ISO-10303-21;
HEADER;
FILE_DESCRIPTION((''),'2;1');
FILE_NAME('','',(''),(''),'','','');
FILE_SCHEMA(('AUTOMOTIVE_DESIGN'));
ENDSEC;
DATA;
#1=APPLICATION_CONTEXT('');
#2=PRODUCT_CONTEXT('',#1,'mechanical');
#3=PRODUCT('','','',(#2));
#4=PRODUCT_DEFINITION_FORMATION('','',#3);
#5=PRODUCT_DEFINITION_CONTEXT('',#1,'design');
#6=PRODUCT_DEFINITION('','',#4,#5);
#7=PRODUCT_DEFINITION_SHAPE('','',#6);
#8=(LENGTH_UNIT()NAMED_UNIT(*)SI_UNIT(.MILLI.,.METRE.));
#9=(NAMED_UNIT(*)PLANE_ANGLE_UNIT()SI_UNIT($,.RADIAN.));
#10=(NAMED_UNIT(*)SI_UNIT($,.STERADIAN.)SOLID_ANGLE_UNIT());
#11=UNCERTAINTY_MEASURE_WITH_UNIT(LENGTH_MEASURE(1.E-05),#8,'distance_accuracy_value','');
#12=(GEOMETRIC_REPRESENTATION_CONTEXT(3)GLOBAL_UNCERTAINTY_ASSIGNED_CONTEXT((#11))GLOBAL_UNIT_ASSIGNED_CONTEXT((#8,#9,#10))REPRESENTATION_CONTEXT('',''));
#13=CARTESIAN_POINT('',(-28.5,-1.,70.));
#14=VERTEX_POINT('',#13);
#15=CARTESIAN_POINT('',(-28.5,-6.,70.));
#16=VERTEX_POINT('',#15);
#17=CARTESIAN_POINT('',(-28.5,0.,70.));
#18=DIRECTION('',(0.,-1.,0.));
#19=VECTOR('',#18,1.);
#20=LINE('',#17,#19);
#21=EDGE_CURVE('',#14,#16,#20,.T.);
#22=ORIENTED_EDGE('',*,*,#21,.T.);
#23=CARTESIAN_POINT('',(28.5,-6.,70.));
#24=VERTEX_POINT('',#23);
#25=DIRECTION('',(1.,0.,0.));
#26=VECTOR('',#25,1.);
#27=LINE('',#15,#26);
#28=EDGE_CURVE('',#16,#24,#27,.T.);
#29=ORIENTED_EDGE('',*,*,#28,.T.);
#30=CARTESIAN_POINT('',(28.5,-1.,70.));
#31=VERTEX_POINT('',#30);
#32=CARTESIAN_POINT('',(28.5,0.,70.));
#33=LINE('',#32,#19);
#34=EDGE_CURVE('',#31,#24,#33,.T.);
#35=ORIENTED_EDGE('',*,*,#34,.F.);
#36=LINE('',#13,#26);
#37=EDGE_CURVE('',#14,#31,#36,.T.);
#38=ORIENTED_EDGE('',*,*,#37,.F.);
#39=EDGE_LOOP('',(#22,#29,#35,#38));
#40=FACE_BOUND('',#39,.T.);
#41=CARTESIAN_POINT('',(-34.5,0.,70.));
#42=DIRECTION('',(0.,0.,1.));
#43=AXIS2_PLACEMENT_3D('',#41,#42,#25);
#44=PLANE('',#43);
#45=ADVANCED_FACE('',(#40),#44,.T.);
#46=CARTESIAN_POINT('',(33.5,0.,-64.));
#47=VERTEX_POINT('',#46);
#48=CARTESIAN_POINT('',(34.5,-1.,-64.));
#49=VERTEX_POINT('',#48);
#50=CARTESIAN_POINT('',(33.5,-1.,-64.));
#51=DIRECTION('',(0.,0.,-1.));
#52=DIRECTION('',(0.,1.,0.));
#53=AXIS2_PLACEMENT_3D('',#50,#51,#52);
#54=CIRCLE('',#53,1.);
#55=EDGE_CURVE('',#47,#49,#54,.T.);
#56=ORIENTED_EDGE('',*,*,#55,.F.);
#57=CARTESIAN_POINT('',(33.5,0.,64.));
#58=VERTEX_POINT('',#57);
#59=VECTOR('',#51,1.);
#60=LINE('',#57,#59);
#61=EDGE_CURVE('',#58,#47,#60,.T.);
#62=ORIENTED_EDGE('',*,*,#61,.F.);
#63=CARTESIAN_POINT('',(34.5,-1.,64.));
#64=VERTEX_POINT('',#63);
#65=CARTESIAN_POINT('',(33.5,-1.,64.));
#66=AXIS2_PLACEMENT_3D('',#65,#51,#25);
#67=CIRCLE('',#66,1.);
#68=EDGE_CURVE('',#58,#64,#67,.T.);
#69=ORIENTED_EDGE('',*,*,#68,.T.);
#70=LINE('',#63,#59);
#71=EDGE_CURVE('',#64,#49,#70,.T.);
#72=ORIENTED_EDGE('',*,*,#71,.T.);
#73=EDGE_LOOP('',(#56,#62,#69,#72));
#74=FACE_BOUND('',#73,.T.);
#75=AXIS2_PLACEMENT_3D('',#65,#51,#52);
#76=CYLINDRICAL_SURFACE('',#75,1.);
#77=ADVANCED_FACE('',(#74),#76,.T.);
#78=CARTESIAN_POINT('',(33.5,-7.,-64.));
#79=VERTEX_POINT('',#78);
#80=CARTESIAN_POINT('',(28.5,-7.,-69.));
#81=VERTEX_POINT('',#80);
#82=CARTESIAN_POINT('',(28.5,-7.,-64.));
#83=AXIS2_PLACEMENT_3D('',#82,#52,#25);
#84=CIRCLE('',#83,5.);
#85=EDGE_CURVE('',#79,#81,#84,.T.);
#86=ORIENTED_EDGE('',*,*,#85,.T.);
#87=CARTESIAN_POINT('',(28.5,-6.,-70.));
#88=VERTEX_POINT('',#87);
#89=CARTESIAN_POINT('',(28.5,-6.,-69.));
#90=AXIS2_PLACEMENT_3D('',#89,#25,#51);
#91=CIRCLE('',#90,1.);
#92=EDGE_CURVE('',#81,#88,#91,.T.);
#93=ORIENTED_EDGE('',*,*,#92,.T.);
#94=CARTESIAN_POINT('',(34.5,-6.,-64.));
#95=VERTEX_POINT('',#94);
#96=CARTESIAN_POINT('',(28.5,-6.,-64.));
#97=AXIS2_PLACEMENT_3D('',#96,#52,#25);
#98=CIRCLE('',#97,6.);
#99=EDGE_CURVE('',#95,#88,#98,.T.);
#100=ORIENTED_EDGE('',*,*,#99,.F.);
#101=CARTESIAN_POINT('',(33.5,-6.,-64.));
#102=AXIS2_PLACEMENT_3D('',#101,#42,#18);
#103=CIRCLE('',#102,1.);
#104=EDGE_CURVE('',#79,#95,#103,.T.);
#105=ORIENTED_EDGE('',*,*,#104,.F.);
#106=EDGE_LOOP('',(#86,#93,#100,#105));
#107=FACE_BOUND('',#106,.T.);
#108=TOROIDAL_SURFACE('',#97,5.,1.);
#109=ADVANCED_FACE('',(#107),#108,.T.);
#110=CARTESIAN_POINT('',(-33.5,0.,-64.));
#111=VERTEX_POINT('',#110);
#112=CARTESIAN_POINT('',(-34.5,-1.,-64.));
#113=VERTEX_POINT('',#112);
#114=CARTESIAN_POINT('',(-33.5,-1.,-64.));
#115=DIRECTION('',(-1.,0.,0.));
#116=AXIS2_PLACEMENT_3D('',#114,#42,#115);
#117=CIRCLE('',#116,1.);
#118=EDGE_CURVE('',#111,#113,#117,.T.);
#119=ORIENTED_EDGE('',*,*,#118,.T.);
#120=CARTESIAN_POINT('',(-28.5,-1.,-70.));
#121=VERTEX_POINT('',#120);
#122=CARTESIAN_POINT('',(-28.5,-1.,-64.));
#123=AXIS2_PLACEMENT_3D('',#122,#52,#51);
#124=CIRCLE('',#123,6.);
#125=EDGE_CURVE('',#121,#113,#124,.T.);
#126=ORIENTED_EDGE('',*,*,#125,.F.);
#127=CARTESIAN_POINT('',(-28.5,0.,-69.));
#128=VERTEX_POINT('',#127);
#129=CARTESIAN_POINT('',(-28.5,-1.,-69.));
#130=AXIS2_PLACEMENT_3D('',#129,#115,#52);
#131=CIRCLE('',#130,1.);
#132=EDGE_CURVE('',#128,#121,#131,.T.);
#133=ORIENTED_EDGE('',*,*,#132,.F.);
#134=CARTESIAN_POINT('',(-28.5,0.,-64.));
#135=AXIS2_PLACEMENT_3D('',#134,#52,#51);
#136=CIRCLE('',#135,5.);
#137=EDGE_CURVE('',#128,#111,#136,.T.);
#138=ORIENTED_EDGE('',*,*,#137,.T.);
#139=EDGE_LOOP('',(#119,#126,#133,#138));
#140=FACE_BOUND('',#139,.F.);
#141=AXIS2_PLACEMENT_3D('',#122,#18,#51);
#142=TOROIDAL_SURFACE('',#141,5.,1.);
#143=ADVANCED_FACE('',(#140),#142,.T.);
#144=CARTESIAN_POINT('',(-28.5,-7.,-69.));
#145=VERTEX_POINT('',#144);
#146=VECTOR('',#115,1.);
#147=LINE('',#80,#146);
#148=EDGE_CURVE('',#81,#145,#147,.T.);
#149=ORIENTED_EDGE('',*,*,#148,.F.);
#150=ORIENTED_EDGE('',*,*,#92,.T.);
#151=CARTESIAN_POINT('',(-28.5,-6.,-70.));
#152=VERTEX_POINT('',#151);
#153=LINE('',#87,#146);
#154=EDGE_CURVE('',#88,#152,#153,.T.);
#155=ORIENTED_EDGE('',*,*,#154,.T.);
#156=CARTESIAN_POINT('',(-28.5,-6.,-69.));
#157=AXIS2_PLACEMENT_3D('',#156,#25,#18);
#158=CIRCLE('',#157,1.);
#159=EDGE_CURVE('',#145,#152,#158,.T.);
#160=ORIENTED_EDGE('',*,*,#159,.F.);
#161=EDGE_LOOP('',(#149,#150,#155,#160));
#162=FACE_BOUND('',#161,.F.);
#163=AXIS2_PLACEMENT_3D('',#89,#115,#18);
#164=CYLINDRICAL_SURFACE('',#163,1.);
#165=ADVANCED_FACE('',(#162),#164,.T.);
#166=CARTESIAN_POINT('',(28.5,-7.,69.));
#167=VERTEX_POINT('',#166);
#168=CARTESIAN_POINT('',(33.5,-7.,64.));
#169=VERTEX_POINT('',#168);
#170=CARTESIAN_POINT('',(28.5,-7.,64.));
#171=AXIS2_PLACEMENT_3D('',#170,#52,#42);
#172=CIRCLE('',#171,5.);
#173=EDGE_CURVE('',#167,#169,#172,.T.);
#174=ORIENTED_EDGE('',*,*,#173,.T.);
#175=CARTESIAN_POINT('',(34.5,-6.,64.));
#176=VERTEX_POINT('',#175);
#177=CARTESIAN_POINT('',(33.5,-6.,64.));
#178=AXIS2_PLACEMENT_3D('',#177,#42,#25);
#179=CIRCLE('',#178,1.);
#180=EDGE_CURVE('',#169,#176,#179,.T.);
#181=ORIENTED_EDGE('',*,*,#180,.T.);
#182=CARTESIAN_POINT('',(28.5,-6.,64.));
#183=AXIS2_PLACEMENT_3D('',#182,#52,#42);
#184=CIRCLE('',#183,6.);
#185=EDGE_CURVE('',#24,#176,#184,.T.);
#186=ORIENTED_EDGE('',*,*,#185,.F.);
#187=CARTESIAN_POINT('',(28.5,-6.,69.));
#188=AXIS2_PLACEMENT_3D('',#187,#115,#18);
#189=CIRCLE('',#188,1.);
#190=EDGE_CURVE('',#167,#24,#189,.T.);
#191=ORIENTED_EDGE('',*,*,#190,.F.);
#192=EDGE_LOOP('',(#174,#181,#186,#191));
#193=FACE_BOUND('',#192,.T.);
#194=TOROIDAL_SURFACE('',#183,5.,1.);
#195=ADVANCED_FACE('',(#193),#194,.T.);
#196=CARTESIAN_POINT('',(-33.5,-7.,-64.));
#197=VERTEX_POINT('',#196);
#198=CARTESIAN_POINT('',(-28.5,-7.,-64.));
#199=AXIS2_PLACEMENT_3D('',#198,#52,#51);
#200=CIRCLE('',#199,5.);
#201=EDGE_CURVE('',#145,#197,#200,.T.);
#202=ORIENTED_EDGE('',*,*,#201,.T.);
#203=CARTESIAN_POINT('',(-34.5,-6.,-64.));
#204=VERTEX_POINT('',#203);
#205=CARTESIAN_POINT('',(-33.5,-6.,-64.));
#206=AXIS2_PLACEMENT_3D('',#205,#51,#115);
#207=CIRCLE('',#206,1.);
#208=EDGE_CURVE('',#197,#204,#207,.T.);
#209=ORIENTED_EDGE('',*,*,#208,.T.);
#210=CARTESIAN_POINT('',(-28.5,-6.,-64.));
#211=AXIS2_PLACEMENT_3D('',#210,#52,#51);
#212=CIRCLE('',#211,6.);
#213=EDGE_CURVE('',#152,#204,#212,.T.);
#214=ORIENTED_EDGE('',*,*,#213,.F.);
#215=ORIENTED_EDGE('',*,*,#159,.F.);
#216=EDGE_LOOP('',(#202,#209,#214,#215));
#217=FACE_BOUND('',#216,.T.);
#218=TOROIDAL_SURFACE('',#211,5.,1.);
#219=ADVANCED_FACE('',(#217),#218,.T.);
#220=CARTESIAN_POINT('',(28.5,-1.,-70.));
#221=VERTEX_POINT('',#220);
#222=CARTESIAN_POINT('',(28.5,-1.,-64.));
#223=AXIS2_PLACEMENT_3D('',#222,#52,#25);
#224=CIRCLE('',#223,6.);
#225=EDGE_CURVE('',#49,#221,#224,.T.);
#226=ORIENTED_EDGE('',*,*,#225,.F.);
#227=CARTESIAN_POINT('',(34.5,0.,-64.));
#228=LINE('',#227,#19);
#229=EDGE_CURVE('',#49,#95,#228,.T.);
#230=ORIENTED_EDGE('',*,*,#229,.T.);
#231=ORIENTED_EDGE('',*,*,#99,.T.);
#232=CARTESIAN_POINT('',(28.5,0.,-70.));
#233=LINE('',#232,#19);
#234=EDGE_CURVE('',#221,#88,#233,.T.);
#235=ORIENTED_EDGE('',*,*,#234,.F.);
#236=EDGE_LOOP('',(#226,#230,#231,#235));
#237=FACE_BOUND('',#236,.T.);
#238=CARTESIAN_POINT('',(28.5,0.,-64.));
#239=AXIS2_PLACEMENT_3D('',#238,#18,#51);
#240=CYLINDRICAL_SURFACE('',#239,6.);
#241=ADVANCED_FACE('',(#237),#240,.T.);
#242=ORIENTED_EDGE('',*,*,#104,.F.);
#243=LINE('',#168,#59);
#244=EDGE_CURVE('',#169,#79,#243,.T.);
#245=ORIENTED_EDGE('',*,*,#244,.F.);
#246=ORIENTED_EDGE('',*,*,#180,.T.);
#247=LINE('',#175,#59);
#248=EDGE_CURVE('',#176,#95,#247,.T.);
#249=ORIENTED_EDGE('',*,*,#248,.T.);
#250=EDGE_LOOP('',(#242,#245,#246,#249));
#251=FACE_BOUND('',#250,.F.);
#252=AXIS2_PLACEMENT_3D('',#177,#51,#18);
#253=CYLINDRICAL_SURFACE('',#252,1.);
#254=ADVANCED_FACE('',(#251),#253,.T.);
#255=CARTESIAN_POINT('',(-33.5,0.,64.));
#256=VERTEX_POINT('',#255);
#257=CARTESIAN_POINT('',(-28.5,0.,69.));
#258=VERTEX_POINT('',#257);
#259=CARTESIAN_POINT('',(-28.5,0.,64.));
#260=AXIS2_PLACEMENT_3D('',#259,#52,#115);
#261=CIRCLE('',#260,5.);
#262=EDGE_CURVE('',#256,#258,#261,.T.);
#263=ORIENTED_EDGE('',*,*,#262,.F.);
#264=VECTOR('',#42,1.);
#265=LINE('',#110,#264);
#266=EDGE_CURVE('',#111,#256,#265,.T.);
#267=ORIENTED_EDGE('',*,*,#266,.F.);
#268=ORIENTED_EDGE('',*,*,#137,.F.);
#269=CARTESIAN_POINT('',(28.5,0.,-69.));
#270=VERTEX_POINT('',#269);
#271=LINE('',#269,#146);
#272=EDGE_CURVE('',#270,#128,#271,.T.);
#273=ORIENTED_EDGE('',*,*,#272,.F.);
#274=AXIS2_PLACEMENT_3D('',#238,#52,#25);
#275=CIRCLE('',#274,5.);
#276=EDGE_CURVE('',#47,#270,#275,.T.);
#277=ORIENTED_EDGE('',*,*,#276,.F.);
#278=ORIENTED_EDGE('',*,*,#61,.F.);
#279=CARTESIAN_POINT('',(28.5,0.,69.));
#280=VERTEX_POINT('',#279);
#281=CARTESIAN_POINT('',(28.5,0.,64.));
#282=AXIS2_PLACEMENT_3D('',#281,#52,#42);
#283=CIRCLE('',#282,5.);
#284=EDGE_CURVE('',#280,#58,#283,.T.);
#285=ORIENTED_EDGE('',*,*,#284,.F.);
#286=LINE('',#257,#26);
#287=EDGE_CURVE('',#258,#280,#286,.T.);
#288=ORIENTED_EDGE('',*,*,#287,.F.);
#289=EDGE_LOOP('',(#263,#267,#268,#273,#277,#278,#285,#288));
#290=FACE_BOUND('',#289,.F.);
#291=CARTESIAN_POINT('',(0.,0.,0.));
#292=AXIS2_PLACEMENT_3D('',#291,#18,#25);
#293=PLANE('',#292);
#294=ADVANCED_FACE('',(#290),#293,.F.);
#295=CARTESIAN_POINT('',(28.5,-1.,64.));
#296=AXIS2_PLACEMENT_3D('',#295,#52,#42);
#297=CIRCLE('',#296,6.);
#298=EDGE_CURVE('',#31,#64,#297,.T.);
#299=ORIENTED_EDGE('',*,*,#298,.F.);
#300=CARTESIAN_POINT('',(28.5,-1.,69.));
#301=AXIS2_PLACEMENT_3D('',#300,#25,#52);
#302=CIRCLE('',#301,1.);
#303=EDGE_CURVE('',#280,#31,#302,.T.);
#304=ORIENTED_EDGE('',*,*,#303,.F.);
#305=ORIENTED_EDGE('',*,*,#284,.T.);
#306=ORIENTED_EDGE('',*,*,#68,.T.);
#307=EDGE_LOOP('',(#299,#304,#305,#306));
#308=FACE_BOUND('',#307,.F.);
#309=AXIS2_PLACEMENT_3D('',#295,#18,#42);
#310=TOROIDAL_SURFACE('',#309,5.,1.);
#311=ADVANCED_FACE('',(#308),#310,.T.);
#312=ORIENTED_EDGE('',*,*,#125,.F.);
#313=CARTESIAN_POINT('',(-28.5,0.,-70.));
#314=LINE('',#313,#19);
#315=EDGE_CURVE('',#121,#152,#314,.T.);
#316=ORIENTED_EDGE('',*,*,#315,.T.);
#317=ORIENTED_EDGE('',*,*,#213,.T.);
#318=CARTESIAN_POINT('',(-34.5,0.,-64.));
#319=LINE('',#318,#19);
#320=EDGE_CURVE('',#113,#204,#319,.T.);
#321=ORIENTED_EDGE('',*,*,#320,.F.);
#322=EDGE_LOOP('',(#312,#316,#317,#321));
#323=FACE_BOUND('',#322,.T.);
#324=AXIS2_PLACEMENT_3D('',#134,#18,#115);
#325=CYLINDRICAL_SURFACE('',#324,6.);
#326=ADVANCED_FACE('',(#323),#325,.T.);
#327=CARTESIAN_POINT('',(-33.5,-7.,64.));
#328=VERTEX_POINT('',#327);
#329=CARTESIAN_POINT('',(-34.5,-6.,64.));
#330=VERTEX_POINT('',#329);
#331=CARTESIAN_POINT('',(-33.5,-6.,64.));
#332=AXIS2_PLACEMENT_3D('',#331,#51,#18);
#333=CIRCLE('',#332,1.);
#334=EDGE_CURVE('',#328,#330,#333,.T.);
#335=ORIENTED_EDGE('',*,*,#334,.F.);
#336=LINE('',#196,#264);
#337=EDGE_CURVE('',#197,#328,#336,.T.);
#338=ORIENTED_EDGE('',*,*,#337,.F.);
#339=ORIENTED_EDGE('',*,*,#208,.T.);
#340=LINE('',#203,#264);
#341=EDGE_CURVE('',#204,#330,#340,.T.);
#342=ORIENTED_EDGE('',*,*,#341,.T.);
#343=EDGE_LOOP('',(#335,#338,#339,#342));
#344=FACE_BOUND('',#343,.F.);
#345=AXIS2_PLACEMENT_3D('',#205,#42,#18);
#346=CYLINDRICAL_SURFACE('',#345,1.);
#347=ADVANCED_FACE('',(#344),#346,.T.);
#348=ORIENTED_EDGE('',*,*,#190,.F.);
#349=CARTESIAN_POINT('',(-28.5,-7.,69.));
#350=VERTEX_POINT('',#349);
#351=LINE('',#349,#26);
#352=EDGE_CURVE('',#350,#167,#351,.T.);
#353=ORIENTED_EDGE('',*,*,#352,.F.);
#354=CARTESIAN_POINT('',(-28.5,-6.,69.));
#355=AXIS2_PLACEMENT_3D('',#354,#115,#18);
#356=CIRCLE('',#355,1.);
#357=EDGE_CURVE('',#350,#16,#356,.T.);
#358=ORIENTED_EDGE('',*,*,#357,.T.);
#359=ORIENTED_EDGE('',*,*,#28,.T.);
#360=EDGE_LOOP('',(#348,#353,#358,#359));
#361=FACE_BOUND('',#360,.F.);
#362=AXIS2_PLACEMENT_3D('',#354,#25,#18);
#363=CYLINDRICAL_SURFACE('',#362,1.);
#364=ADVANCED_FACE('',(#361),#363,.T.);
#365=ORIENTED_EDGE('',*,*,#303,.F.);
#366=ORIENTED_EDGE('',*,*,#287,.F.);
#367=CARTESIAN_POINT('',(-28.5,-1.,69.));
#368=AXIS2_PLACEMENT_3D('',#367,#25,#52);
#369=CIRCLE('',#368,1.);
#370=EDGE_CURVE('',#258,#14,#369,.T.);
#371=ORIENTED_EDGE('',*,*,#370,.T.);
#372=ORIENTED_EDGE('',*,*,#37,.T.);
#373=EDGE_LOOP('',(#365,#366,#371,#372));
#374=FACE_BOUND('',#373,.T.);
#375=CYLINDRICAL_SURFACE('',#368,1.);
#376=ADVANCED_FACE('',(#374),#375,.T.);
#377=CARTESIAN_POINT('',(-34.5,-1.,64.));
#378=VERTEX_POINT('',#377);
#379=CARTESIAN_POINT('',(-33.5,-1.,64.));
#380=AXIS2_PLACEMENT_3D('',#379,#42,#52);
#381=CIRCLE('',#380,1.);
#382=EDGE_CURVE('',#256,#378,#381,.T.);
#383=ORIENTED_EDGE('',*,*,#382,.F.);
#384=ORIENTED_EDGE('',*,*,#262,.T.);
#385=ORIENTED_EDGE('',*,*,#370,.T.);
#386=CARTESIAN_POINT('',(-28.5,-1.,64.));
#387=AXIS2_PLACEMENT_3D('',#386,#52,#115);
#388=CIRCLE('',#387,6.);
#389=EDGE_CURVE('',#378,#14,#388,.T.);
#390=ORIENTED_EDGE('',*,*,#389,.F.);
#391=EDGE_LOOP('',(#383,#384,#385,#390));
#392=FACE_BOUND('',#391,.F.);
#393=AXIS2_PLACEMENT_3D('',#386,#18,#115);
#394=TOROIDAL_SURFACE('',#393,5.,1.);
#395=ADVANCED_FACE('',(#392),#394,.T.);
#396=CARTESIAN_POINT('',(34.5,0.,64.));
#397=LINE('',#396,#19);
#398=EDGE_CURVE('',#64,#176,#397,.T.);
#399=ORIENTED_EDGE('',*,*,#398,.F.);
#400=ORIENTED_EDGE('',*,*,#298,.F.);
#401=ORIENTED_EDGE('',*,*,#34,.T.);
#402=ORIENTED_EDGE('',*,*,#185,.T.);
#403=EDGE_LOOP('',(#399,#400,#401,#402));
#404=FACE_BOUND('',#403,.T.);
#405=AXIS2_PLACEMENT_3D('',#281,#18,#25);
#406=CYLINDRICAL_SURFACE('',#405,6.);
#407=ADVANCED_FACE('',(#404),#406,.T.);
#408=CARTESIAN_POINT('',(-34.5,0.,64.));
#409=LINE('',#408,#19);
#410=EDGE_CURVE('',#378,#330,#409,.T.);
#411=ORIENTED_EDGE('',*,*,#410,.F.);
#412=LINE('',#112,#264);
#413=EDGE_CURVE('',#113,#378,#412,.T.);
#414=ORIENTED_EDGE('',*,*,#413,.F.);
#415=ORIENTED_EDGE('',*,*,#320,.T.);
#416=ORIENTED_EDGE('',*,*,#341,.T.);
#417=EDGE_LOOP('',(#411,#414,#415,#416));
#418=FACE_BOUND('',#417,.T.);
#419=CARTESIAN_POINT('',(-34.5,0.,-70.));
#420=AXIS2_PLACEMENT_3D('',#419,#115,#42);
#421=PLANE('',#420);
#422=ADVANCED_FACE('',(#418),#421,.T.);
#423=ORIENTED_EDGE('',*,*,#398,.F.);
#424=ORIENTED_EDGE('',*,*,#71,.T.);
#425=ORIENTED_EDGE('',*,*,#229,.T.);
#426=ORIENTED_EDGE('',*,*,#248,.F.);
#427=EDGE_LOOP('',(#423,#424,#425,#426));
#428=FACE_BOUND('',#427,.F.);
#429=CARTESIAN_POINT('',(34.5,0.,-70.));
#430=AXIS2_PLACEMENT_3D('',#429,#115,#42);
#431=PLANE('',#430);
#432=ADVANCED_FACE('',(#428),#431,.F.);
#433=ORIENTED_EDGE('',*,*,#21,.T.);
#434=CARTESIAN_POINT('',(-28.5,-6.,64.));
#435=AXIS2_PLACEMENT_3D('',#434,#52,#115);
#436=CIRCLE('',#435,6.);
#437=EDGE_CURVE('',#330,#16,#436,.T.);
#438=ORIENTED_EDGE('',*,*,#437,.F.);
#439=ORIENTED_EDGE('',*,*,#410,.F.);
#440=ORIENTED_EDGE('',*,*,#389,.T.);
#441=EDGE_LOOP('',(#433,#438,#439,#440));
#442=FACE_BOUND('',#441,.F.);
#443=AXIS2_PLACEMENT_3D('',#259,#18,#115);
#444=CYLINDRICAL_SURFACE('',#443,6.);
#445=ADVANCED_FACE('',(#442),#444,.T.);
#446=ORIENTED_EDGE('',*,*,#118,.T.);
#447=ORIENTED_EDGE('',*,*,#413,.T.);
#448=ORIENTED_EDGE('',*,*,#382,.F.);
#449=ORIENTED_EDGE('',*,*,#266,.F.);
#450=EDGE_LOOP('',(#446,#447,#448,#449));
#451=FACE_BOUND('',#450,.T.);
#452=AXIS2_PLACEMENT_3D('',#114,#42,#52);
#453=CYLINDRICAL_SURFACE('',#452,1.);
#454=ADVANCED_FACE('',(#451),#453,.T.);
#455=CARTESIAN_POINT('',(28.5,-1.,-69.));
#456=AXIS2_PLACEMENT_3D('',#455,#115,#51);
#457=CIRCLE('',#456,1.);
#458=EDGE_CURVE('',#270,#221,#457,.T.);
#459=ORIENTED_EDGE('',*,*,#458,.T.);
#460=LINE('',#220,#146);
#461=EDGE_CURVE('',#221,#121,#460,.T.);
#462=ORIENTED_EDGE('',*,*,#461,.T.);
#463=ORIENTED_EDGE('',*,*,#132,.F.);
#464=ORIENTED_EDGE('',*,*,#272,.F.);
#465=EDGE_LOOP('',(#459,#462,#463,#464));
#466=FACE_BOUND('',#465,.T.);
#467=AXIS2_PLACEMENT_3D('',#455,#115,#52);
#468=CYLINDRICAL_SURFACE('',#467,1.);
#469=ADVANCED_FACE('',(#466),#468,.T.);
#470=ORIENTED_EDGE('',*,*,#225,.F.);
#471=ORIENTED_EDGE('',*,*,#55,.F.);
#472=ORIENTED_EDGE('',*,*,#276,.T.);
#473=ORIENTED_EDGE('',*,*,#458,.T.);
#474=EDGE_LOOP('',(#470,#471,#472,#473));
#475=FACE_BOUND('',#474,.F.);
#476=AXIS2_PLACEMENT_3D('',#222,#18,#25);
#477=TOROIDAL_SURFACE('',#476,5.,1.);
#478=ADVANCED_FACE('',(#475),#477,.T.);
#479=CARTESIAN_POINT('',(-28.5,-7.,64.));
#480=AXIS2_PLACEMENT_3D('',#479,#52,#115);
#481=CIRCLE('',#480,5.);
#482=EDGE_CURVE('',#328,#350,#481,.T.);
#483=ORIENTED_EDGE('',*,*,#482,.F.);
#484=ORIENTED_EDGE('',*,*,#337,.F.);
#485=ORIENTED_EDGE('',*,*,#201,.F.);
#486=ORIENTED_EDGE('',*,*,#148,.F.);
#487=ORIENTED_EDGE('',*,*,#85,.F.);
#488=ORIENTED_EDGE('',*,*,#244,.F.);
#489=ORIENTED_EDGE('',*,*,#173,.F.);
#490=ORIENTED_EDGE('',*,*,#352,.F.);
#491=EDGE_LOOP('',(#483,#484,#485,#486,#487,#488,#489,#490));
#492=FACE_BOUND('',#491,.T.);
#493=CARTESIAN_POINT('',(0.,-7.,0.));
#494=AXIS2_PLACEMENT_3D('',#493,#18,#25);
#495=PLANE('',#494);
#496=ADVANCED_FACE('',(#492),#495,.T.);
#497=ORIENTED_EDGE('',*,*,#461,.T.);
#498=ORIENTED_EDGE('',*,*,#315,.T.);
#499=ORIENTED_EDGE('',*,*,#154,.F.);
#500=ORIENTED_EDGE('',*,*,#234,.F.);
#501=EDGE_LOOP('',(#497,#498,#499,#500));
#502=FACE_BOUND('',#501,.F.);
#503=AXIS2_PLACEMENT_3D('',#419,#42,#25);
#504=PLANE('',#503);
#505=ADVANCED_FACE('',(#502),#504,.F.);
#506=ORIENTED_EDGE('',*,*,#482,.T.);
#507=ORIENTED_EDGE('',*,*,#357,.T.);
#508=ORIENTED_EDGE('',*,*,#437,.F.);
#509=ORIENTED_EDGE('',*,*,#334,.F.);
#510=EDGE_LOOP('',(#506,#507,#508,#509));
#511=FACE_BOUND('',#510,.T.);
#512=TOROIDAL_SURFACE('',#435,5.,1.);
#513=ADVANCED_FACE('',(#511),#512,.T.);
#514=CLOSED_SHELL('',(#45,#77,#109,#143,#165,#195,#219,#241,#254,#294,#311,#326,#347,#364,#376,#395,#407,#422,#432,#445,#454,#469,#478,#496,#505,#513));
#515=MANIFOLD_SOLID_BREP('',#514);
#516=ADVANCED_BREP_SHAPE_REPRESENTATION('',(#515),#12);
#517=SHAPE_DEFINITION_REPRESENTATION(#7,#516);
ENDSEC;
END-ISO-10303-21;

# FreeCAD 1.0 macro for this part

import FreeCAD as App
import Part
import Sketcher
Q = App.Units.Quantity


def edges_at(feature, points):
    """Names of the edges that pass closest to the given points."""
    edges = feature.Shape.Edges
    near = lambda p: min(range(len(edges)), key=lambda i: edges[i].distToShape(Part.Vertex(*p))[0])
    return sorted({f"Edge{near(p) + 1}" for p in points})


def add_polygon(sketch, points):
    """Adds a closed chain of lines whose ends are joined by coincident constraints."""
    first, n = sketch.GeometryCount, len(points)
    for a, b in zip(points, points[1:] + points[:1]):
        sketch.addGeometry(Part.LineSegment(App.Vector(*a, 0), App.Vector(*b, 0)), False)
    for i in range(n):
        sketch.addConstraint(Sketcher.Constraint("Coincident", first + i, 2, first + (i + 1) % n, 1))

doc = App.newDocument("Part")
params = doc.addObject("Spreadsheet::Sheet", "Params")
for row, (alias, value) in enumerate([
    ("sketch1_width", "69 mm"),
    ("sketch1_height", "140 mm"),
    ("pad1_length", "7 mm"),
    ("fillet_radius", "6 mm"),
    ("fillet2_radius", "1 mm"),
], start=1):
    params.set(f"A{row}", alias)
    params.set(f"B{row}", "=" + value)
    params.setAlias(f"B{row}", alias)

body = doc.addObject("PartDesign::Body", "Body")

# Sketch on XZ plane
sketch1 = body.newObject("Sketcher::SketchObject", "Sketch")
sketch1.AttachmentSupport = (doc.getObject("XZ_Plane"), [""])
sketch1.MapMode = "FlatFace"
add_polygon(sketch1, [(-34, 70), (-34, -70), (34, -70), (34, 70)])  # lines 0-3
sketch1.addConstraint([
    Sketcher.Constraint("Vertical", 0),
    Sketcher.Constraint("Horizontal", 1),
    Sketcher.Constraint("Vertical", 2),
    Sketcher.Constraint("Horizontal", 3),
    Sketcher.Constraint("Symmetric", 0, 2, 2, 2, -1, 1),
    Sketcher.Constraint("DistanceX", 1, 1, 1, 2, Q("69 mm")),
    Sketcher.Constraint("DistanceY", 0, 2, 0, 1, Q("140 mm")),
])
sketch1.setExpression("Constraints[9]", "Params.sketch1_width")
sketch1.setExpression("Constraints[10]", "Params.sketch1_height")
pad1 = body.newObject("PartDesign::Pad", "Pad")
pad1.Profile = sketch1
pad1.setExpression("Length", "Params.pad1_length")
doc.recompute()

fillet = body.newObject("PartDesign::Fillet", "Fillet")
fillet.Base = (pad1, edges_at(pad1, [
    (34.5, -3.5, 70),
    (-34.5, -3.5, 70),
    (34.5, -3.5, -70),
    (-34.5, -3.5, -70),
]))
fillet.setExpression("Radius", "Params.fillet_radius")
doc.recompute()

fillet2 = body.newObject("PartDesign::Fillet", "Fillet001")
fillet2.Base = (fillet, edges_at(fillet, [(0, -7, 70), (0, 0, 70)]))
fillet2.setExpression("Radius", "Params.fillet2_radius")

doc.recompute()
